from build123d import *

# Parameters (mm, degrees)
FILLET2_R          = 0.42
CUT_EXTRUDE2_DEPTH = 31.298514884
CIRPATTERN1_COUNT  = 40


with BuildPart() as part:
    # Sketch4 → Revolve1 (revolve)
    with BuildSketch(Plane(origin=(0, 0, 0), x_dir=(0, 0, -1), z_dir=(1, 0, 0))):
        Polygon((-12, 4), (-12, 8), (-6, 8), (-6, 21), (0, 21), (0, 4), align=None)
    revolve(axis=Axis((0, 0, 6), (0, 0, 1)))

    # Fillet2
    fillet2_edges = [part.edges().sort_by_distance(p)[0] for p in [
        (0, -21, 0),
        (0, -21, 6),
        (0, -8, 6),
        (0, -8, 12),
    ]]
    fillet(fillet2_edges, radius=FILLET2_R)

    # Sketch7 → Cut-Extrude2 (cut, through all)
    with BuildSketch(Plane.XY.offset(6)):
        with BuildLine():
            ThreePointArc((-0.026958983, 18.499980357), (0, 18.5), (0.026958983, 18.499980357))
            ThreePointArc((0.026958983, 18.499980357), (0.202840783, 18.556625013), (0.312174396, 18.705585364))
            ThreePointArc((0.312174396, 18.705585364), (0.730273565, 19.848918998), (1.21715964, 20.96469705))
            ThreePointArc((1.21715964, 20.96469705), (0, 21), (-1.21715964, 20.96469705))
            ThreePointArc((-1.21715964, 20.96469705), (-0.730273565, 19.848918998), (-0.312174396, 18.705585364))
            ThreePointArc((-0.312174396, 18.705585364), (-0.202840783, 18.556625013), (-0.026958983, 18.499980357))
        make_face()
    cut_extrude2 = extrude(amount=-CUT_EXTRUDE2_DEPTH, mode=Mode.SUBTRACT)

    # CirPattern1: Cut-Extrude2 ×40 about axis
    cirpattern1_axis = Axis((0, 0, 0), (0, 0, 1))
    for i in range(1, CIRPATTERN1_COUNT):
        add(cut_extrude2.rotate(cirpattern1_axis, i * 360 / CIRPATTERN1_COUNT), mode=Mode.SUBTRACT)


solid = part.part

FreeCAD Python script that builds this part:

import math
import FreeCAD as App
import Part
import Sketcher

V = App.Vector
Q = App.Units.Quantity


def edges_at(feature, points):
    """Names of the edges that pass closest to the given points."""
    edges = feature.Shape.Edges
    near = lambda p: min(range(len(edges)), key=lambda i: edges[i].distToShape(Part.Vertex(*p))[0])
    return sorted({f"Edge{near(p) + 1}" for p in points})

doc = App.newDocument("Part")
params = doc.addObject("Spreadsheet::Sheet", "Params")
for row, (alias, value) in enumerate([
    ("sketch1_width", "4 mm"),
    ("sketch1_width2", "17 mm"),
    ("sketch1_height", "12 mm"),
    ("revolution_angle", "360 deg"),
    ("fillet_radius", "0.42 mm"),
    ("sketch2_radius", "20 mm"),
    ("sketch2_radius2", "21 mm"),
    ("sketch2_radius3", "20 mm"),
], start=1):
    params.set(f"A{row}", alias)
    params.set(f"B{row}", "=" + value)
    params.setAlias(f"B{row}", alias)

body = doc.addObject("PartDesign::Body", "Body")

sketch1 = body.newObject("Sketcher::SketchObject", "Sketch")
sketch1.AttachmentSupport = (doc.getObject("YZ_Plane"), [""])
sketch1.MapMode = "FlatFace"
sketch1.addGeometry(Part.LineSegment(V(8, 12, 0), V(4, 12, 0)), False)
sketch1.addGeometry(Part.LineSegment(V(4, 12, 0), V(4, 0, 0)), False)
sketch1.addGeometry(Part.LineSegment(V(4, 0, 0), V(21, 0, 0)), False)
sketch1.addGeometry(Part.LineSegment(V(21, 0, 0), V(21, 6, 0)), False)
sketch1.addGeometry(Part.LineSegment(V(21, 6, 0), V(8, 6, 0)), False)
sketch1.addGeometry(Part.LineSegment(V(8, 6, 0), V(8, 12, 0)), False)
sketch1.addConstraint(Sketcher.Constraint("Coincident", 0, 2, 1, 1))
sketch1.addConstraint(Sketcher.Constraint("Coincident", 1, 2, 2, 1))
sketch1.addConstraint(Sketcher.Constraint("Coincident", 2, 2, 3, 1))
sketch1.addConstraint(Sketcher.Constraint("Coincident", 3, 2, 4, 1))
sketch1.addConstraint(Sketcher.Constraint("Coincident", 4, 2, 5, 1))
sketch1.addConstraint(Sketcher.Constraint("Coincident", 5, 2, 0, 1))
sketch1.addConstraint(Sketcher.Constraint("Horizontal", 0))
sketch1.addConstraint(Sketcher.Constraint("Vertical", 1))
sketch1.addConstraint(Sketcher.Constraint("Horizontal", 2))
sketch1.addConstraint(Sketcher.Constraint("Vertical", 3))
sketch1.addConstraint(Sketcher.Constraint("Horizontal", 4))
sketch1.addConstraint(Sketcher.Constraint("Vertical", 5))
sketch1.addConstraint(Sketcher.Constraint("PointOnObject", 1, 2, -1))
sketch1.addConstraint(Sketcher.Constraint("Equal", 3, 5))
sketch1.addConstraint(Sketcher.Constraint("DistanceX", 0, 2, 0, 1, Q("4 mm")))
sketch1.addConstraint(Sketcher.Constraint("DistanceX", 2, 1, 2, 2, Q("17 mm")))
sketch1.addConstraint(Sketcher.Constraint("DistanceY", 1, 2, 1, 1, Q("12 mm")))
sketch1.addConstraint(Sketcher.Constraint("DistanceX", -1, 1, 0, 2, Q("4 mm")))
sketch1.setExpression("Constraints[14]", "Params.sketch1_width")
sketch1.setExpression("Constraints[15]", "Params.sketch1_width2")
sketch1.setExpression("Constraints[16]", "Params.sketch1_height")
revolution = body.newObject("PartDesign::Revolution", "Revolution")
revolution.Profile = sketch1
revolution.ReferenceAxis = (sketch1, ["V_Axis"])
revolution.setExpression("Angle", "Params.revolution_angle")
doc.recompute()

fillet = body.newObject("PartDesign::Fillet", "Fillet")
fillet.Base = (revolution, edges_at(revolution, [
    (0, -21, 0),
    (0, -21, 6),
    (0, -8, 6),
    (0, -8, 12),
]))
fillet.setExpression("Radius", "Params.fillet_radius")

sketch2 = body.newObject("Sketcher::SketchObject", "Sketch001")
sketch2.AttachmentSupport = (doc.getObject("XY_Plane"), [""])
sketch2.MapMode = "FlatFace"
sketch2.AttachmentOffset = App.Placement(V(0, 0, 6), App.Rotation())
sketch2.addGeometry(Part.ArcOfCircle(Part.Circle(V(0, 0.000098, 0), V(0, 0, 1), 18.499902), math.radians(89.916506), math.radians(90.083494)), False)
sketch2.addGeometry(Part.ArcOfCircle(Part.Circle(V(0.027396, 18.800002, 0), V(0, 0, 1), 0.300022), math.radians(-90.083494), math.radians(-18.342633)), False)
sketch2.addGeometry(Part.ArcOfCircle(Part.Circle(V(19.296006, 12.411609, 0), V(0, 0, 1), 20), math.radians(154.681206), math.radians(161.657367)), False)
sketch2.addGeometry(Part.ArcOfCircle(Part.Circle(V(0, 0, 0), V(0, 0, 1), 21), math.radians(86.677275), math.radians(93.322725)), False)
sketch2.addGeometry(Part.ArcOfCircle(Part.Circle(V(-19.296006, 12.411609, 0), V(0, 0, 1), 20), math.radians(18.342633), math.radians(25.318794)), False)
sketch2.addGeometry(Part.ArcOfCircle(Part.Circle(V(-0.027396, 18.800002, 0), V(0, 0, 1), 0.300022), math.radians(-161.657367), math.radians(-89.916506)), False)
sketch2.addConstraint(Sketcher.Constraint("Coincident", 0, 1, 1, 1))
sketch2.addConstraint(Sketcher.Constraint("Coincident", 1, 2, 2, 2))
sketch2.addConstraint(Sketcher.Constraint("Coincident", 2, 1, 3, 1))
sketch2.addConstraint(Sketcher.Constraint("Coincident", 3, 2, 4, 2))
sketch2.addConstraint(Sketcher.Constraint("Coincident", 4, 1, 5, 1))
sketch2.addConstraint(Sketcher.Constraint("Coincident", 5, 2, 0, 2))
sketch2.addConstraint(Sketcher.Constraint("Coincident", 3, 3, -1, 1))
sketch2.addConstraint(Sketcher.Constraint("PointOnObject", 0, 3, -2))
sketch2.addConstraint(Sketcher.Constraint("Radius", 2, Q("20 mm")))
sketch2.addConstraint(Sketcher.Constraint("Radius", 3, Q("21 mm")))
sketch2.addConstraint(Sketcher.Constraint("Radius", 4, Q("20 mm")))
sketch2.addConstraint(Sketcher.Constraint("DistanceY", -1, 1, 1, 3, Q("18.800002 mm")))
sketch2.addConstraint(Sketcher.Constraint("DistanceY", -1, 1, 5, 3, Q("18.800002 mm")))
sketch2.addConstraint(Sketcher.Constraint("Radius", 1, Q("0.300022 mm")))
sketch2.addConstraint(Sketcher.Constraint("Radius", 0, Q("18.499902 mm")))
sketch2.addConstraint(Sketcher.Constraint("DistanceX", 0, 1, 2, 1, Q("1.190201 mm")))
sketch2.addConstraint(Sketcher.Constraint("DistanceY", -1, 1, 2, 3, Q("12.411609 mm")))
sketch2.addConstraint(Sketcher.Constraint("DistanceY", -1, 1, 4, 3, Q("12.411609 mm")))
sketch2.addConstraint(Sketcher.Constraint("DistanceX", -1, 1, 0, 1, Q("0.026959 mm")))
sketch2.addConstraint(Sketcher.Constraint("DistanceX", 3, 2, -1, 1, Q("1.21716 mm")))
sketch2.addConstraint(Sketcher.Constraint("DistanceX", 5, 2, -1, 1, Q("0.026959 mm")))
sketch2.addConstraint(Sketcher.Constraint("DistanceX", 1, 3, 1, 2, Q("0.284778 mm")))
sketch2.addConstraint(Sketcher.Constraint("DistanceX", 4, 1, 5, 3, Q("0.284778 mm")))
sketch2.setExpression("Constraints[8]", "Params.sketch2_radius")
sketch2.setExpression("Constraints[9]", "Params.sketch2_radius2")
sketch2.setExpression("Constraints[10]", "Params.sketch2_radius3")
pocket1 = body.newObject("PartDesign::Pocket", "Pocket")
pocket1.Profile = sketch2
pocket1.Type = "ThroughAll"
doc.recompute()

polarpattern = body.newObject("PartDesign::PolarPattern", "PolarPattern")
polarpattern.Originals = [pocket1]
polarpattern.Axis = (doc.getObject("Z_Axis"), [""])
polarpattern.Angle = 360
polarpattern.Occurrences = 40
body.Tip = polarpattern

doc.recompute()
